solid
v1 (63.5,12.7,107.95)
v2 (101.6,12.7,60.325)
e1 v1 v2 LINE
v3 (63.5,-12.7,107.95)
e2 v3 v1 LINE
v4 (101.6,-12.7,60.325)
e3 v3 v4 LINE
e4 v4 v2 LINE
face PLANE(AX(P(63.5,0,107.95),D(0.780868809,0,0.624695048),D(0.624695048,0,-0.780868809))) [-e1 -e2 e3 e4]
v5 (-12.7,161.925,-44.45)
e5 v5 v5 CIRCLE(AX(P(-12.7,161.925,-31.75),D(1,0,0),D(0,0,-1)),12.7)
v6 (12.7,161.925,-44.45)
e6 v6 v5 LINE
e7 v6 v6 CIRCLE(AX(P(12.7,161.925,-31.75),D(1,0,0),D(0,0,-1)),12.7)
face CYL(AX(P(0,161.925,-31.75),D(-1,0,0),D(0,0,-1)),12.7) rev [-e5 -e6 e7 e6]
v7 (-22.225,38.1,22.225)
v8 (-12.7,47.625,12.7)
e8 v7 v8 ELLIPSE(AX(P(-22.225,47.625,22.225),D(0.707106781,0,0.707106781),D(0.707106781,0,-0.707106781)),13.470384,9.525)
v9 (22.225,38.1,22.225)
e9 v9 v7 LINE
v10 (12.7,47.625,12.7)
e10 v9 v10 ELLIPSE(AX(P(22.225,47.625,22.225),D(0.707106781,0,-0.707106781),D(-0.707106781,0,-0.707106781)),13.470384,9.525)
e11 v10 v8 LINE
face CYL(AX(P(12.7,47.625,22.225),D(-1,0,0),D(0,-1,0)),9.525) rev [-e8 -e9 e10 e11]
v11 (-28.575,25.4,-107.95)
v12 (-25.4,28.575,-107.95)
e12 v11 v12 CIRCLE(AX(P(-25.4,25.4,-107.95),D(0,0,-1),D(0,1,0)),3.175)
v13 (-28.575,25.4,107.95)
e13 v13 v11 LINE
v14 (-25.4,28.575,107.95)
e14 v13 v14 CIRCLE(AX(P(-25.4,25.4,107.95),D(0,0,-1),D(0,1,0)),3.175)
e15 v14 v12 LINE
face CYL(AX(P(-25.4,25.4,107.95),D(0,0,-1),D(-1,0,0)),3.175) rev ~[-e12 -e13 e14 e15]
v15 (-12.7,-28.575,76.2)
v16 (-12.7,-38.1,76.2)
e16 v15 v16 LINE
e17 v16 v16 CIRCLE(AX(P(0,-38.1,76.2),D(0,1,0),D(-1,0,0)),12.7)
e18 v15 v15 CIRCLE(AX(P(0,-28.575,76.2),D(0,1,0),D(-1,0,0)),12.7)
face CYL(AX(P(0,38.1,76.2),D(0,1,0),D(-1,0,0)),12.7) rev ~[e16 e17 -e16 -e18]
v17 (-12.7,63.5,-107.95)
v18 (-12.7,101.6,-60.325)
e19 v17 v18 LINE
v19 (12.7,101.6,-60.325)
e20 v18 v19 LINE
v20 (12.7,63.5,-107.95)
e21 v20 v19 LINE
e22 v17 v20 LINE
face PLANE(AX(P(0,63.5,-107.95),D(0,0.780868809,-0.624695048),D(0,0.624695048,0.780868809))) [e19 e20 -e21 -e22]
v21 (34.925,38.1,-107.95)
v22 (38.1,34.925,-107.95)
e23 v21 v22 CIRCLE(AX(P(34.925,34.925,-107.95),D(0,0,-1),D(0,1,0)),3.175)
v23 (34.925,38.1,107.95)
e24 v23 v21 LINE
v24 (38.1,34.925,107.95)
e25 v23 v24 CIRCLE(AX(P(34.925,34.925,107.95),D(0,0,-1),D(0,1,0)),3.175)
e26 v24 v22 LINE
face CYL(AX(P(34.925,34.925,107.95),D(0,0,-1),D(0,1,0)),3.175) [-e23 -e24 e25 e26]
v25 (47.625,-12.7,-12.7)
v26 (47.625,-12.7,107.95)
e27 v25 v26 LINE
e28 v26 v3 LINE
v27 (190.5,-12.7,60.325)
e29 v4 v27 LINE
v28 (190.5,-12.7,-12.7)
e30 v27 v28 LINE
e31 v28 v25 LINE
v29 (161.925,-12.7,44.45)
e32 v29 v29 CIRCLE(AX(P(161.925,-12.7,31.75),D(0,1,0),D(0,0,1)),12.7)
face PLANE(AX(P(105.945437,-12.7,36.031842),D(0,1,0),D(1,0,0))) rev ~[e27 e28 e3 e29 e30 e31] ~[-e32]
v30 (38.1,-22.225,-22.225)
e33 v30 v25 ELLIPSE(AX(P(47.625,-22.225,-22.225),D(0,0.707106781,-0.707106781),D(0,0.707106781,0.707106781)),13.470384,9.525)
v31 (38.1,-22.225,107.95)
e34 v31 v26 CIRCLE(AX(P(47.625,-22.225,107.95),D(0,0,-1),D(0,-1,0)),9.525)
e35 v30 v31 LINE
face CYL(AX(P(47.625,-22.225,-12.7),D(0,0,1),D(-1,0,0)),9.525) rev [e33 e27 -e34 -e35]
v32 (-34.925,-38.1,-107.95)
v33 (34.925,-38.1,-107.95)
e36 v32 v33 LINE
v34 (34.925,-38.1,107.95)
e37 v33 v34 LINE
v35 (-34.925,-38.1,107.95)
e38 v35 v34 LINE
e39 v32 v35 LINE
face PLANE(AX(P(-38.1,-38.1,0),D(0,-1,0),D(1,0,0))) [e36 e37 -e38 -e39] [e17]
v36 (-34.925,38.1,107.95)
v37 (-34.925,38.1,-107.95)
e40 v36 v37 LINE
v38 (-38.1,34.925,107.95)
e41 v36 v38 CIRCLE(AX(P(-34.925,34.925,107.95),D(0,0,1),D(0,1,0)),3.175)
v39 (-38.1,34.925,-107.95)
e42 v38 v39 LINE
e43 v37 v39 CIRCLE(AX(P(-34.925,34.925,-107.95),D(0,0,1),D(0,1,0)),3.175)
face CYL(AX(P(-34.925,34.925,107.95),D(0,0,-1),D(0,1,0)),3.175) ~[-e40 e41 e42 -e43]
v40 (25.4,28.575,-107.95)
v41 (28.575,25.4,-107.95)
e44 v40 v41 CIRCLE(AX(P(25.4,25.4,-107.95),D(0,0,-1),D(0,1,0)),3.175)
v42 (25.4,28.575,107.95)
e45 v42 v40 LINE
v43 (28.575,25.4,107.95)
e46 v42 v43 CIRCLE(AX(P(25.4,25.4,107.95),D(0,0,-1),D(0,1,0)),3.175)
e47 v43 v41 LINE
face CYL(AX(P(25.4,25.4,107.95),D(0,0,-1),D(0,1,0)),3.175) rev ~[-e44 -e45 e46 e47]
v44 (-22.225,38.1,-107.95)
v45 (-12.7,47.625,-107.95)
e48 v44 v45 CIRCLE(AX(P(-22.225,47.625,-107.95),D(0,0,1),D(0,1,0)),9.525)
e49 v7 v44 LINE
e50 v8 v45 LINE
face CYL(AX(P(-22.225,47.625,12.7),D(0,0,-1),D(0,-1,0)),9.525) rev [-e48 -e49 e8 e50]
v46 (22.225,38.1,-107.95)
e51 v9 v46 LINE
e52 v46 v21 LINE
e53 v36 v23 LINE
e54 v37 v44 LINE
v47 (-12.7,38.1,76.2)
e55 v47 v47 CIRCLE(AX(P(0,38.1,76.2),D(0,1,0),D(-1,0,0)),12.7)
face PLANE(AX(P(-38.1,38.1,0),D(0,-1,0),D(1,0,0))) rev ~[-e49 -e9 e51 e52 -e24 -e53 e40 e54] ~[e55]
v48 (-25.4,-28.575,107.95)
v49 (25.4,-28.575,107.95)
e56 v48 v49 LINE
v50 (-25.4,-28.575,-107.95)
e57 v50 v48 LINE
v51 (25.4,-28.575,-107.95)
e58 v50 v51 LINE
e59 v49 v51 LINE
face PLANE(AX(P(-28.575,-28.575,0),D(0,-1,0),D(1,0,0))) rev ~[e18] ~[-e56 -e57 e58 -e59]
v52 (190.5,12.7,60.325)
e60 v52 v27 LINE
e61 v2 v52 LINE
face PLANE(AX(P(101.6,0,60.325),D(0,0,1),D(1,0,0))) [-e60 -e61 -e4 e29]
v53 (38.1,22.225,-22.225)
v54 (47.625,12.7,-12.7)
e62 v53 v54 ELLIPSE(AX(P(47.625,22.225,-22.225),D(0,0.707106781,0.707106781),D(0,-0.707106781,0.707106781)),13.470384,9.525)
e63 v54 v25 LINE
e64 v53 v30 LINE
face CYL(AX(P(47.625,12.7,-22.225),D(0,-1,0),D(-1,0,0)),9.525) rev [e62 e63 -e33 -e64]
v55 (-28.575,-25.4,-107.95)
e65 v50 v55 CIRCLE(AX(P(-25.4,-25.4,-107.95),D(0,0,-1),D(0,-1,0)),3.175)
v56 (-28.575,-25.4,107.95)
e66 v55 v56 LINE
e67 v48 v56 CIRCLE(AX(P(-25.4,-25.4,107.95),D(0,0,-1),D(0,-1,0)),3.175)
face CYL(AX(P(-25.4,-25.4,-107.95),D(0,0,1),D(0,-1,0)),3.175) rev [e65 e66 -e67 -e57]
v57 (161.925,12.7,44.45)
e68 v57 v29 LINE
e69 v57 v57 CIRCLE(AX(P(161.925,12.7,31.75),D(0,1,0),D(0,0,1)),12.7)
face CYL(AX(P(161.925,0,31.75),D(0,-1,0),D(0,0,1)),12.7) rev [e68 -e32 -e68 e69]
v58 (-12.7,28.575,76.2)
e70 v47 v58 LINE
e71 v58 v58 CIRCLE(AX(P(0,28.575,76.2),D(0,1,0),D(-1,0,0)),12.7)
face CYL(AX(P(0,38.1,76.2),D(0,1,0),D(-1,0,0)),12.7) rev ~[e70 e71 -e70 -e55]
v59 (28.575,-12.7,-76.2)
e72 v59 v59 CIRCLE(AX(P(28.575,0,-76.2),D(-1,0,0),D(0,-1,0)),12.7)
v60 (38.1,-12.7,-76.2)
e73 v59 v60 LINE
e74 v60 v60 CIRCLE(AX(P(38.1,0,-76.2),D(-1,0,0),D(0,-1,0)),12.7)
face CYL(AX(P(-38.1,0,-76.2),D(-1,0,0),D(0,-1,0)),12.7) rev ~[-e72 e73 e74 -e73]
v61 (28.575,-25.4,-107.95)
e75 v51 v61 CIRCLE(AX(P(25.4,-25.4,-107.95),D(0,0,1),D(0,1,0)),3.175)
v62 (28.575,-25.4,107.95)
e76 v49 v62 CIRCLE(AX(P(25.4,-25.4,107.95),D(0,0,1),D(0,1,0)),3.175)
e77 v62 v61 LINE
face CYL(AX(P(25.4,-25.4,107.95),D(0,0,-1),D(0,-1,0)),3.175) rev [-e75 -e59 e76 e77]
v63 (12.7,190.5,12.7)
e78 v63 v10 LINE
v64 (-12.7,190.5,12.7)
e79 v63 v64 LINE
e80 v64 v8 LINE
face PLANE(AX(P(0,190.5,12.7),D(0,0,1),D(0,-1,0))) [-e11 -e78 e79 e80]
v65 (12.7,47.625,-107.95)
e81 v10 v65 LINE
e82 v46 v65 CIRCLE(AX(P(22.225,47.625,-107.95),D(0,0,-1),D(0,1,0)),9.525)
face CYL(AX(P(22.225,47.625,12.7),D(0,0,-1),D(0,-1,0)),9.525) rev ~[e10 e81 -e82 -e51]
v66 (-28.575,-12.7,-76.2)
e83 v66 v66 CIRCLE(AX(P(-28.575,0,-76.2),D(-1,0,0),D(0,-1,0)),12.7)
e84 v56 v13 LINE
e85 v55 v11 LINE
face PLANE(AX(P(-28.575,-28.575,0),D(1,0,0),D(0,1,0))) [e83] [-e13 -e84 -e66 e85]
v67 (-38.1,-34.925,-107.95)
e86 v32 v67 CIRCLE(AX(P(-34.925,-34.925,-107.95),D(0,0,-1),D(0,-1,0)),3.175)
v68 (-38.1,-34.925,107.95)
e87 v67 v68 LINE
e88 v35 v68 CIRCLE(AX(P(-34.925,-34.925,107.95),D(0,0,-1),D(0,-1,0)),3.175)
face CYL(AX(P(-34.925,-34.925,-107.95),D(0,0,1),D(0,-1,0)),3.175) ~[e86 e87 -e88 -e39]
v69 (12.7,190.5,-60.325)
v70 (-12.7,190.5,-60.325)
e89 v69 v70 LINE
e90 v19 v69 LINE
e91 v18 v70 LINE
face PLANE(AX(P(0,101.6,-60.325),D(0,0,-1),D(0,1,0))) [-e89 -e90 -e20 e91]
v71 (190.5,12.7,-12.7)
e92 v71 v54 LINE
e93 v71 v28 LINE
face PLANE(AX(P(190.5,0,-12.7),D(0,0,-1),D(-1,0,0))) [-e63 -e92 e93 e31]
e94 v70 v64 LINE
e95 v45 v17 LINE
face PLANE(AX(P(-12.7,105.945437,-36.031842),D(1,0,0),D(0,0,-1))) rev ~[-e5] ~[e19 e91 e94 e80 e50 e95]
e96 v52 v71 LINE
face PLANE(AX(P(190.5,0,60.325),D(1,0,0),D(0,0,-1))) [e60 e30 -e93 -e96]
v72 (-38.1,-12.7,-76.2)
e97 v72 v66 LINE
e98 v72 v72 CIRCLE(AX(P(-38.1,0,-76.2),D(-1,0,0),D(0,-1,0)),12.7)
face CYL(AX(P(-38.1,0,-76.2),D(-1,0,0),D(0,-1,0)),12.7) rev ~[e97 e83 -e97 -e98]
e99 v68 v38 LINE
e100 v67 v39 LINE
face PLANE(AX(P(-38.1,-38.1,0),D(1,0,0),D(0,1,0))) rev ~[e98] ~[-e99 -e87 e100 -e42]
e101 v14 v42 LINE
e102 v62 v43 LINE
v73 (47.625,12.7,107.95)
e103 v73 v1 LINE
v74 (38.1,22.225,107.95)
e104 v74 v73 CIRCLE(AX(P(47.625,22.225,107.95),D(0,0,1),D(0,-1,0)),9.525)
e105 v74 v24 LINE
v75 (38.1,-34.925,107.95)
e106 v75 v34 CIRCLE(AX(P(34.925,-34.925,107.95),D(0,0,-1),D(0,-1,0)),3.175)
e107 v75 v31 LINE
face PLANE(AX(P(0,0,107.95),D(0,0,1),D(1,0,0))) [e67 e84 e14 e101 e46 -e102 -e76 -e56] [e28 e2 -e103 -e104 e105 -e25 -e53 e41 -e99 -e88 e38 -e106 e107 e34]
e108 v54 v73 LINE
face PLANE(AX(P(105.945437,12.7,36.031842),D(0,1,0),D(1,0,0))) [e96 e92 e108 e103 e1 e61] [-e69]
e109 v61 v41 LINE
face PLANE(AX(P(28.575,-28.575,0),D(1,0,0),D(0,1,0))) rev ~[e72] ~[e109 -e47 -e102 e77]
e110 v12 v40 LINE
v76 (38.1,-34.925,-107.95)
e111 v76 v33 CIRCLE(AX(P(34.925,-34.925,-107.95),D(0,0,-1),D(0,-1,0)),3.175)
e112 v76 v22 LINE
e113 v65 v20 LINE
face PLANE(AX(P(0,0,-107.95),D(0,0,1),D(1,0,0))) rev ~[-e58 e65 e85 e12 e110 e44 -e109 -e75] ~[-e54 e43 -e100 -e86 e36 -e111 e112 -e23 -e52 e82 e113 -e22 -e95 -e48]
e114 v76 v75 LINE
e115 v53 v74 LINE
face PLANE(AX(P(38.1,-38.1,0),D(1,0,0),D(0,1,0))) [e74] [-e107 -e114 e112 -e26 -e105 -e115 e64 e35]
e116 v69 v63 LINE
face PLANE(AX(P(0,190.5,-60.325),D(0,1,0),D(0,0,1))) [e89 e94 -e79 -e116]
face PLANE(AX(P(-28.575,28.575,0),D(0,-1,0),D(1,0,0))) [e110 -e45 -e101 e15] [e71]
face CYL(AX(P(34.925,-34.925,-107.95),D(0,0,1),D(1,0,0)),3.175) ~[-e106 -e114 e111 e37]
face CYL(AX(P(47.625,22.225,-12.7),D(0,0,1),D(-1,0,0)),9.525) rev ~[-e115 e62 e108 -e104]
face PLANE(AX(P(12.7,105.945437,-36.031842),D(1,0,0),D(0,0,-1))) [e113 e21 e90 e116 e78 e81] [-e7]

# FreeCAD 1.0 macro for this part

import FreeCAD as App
import Part
import Sketcher
from FreeCAD import Vector
Q = App.Units.Quantity


def edges_at(feature, points):
    """Names of the edges that pass closest to the given points."""
    edges = feature.Shape.Edges
    near = lambda p: min(range(len(edges)), key=lambda i: edges[i].distToShape(Part.Vertex(*p))[0])
    return sorted({f"Edge{near(p) + 1}" for p in points})


def add_polygon(sketch, points):
    """Adds a closed chain of lines whose ends are joined by coincident constraints."""
    first, n = sketch.GeometryCount, len(points)
    for a, b in zip(points, points[1:] + points[:1]):
        sketch.addGeometry(Part.LineSegment(App.Vector(*a, 0), App.Vector(*b, 0)), False)
    for i in range(n):
        sketch.addConstraint(Sketcher.Constraint("Coincident", first + i, 2, first + (i + 1) % n, 1))

doc = App.newDocument("Part")
body = doc.addObject("PartDesign::Body", "Body")

# Sketch on XY plane
sketch1 = body.newObject("Sketcher::SketchObject", "Sketch")
sketch1.AttachmentSupport = (doc.getObject("XY_Plane"), [""])
sketch1.MapMode = "FlatFace"
add_polygon(sketch1, [(-38.1, 38.1), (-38.1, -38.1), (38.1, -38.1), (38.1, 38.1)])  # lines 0-3
add_polygon(sketch1, [(28.575, -28.575), (-28.575, -28.575), (-28.575, 28.575), (28.575, 28.575)])  # lines 4-7
sketch1.addConstraint([
    Sketcher.Constraint("Vertical", 0),
    Sketcher.Constraint("Horizontal", 1),
    Sketcher.Constraint("Vertical", 2),
    Sketcher.Constraint("Horizontal", 3),
    Sketcher.Constraint("Horizontal", 4),
    Sketcher.Constraint("Vertical", 5),
    Sketcher.Constraint("Horizontal", 6),
    Sketcher.Constraint("Vertical", 7),
    Sketcher.Constraint("Symmetric", 0, 2, 2, 2, -1, 1),
    Sketcher.Constraint("Symmetric", 4, 2, 6, 2, -1, 1),
    Sketcher.Constraint("Equal", 3, 0),
    Sketcher.Constraint("Equal", 6, 5),
    Sketcher.Constraint("DistanceX", 1, 1, 1, 2, Q("3 in")),
    Sketcher.Constraint("DistanceX", 4, 2, 4, 1, Q("2.25 in")),
])
pad1 = body.newObject("PartDesign::Pad", "Pad")
pad1.Profile = sketch1
pad1.Length = Q("8.5 in")
pad1.Midplane = True

# Sketch on XZ plane
sketch2 = body.newObject("Sketcher::SketchObject", "Sketch001")
sketch2.AttachmentSupport = (doc.getObject("XZ_Plane"), [""])
sketch2.MapMode = "FlatFace"
sketch2.AttachmentOffset = App.Placement(Vector(0, 0, -1.5 * 25.4), App.Rotation())
sketch2.addGeometry(Part.Circle(Vector(0, 76.2, 0), Vector(0, 0, 1), 12.7), False)
sketch2.addConstraint([
    Sketcher.Constraint("PointOnObject", 0, 3, -2),
    Sketcher.Constraint("Diameter", 0, Q("1 in")),
    Sketcher.Constraint("DistanceY", -1, 1, 0, 3, Q("3 in")),
])
pocket1 = body.newObject("PartDesign::Pocket", "Pocket")
pocket1.Profile = sketch2
pocket1.Type = "ThroughAll"
pocket1.Reversed = True

# Sketch on YZ plane
sketch3 = body.newObject("Sketcher::SketchObject", "Sketch002")
sketch3.AttachmentSupport = (doc.getObject("YZ_Plane"), [""])
sketch3.MapMode = "FlatFace"
sketch3.AttachmentOffset = App.Placement(Vector(0, 0, -1.5 * 25.4), App.Rotation())
sketch3.addGeometry(Part.Circle(Vector(0, -76.2, 0), Vector(0, 0, 1), 12.7), False)
sketch3.addConstraint([
    Sketcher.Constraint("PointOnObject", 0, 3, -2),
    Sketcher.Constraint("Diameter", 0, Q("1 in")),
    Sketcher.Constraint("DistanceY", 0, 3, -1, 1, Q("3 in")),
])
pocket2 = body.newObject("PartDesign::Pocket", "Pocket001")
pocket2.Profile = sketch3
pocket2.Type = "ThroughAll"
pocket2.Reversed = True

# Sketch on YZ plane
sketch4 = body.newObject("Sketcher::SketchObject", "Sketch003")
sketch4.AttachmentSupport = (doc.getObject("YZ_Plane"), [""])
sketch4.MapMode = "FlatFace"
add_polygon(sketch4, [(38.1, 12.7), (38.1, -107.95), (63.5, -107.95), (101.6, -60.325), (190.5, -60.325), (190.5, 12.7)])  # lines 0-5
sketch4.addGeometry(Part.Circle(Vector(161.925, -31.75, 0), Vector(0, 0, 1), 12.7), False)  # 6
sketch4.addConstraint([
    Sketcher.Constraint("Vertical", 0),
    Sketcher.Constraint("Horizontal", 1),
    Sketcher.Constraint("Horizontal", 3),
    Sketcher.Constraint("Vertical", 4),
    Sketcher.Constraint("Horizontal", 5),
    Sketcher.Constraint("Diameter", 6, Q("1 in")),
    Sketcher.Constraint("DistanceX", 1, 1, 1, 2, Q("1 in")),
    Sketcher.Constraint("DistanceX", 5, 2, 5, 1, Q("6 in")),
    Sketcher.Constraint("DistanceX", 3, 1, 3, 2, Q("3.5 in")),
    Sketcher.Constraint("DistanceX", -1, 1, 2, 2, Q("4 in")),
    Sketcher.Constraint("DistanceY", 0, 2, 6, 3, Q("3 in")),
    Sketcher.Constraint("DistanceY", 0, 2, 0, 1, Q("4.75 in")),
    Sketcher.Constraint("DistanceY", -1, 1, 4, 2, Q("0.5 in")),
    Sketcher.Constraint("DistanceY", 4, 1, 4, 2, Q("2.875 in")),
    Sketcher.Constraint("DistanceX", -1, 1, 6, 3, Q("6.375 in")),
])
pad2 = body.newObject("PartDesign::Pad", "Pad001")
pad2.Profile = sketch4
pad2.Length = Q("1 in")
pad2.Midplane = True

# Sketch on XZ plane
sketch5 = body.newObject("Sketcher::SketchObject", "Sketch004")
sketch5.AttachmentSupport = (doc.getObject("XZ_Plane"), [""])
sketch5.MapMode = "FlatFace"
add_polygon(sketch5, [(38.1, -12.7), (38.1, 107.95), (63.5, 107.95), (101.6, 60.325), (190.5, 60.325), (190.5, -12.7)])  # lines 0-5
sketch5.addGeometry(Part.Circle(Vector(161.925, 31.75, 0), Vector(0, 0, 1), 12.7), False)  # 6
sketch5.addConstraint([
    Sketcher.Constraint("Vertical", 0),
    Sketcher.Constraint("Horizontal", 1),
    Sketcher.Constraint("Horizontal", 3),
    Sketcher.Constraint("Vertical", 4),
    Sketcher.Constraint("Horizontal", 5),
    Sketcher.Constraint("Diameter", 6, Q("1 in")),
    Sketcher.Constraint("DistanceX", 1, 1, 1, 2, Q("1 in")),
    Sketcher.Constraint("DistanceX", 5, 2, 5, 1, Q("6 in")),
    Sketcher.Constraint("DistanceX", 3, 1, 3, 2, Q("3.5 in")),
    Sketcher.Constraint("DistanceX", -1, 1, 2, 2, Q("4 in")),
    Sketcher.Constraint("DistanceY", 6, 3, 0, 2, Q("3 in")),
    Sketcher.Constraint("DistanceY", 0, 1, 0, 2, Q("4.75 in")),
    Sketcher.Constraint("DistanceY", 4, 2, -1, 1, Q("0.5 in")),
    Sketcher.Constraint("DistanceY", 4, 2, 4, 1, Q("2.875 in")),
    Sketcher.Constraint("DistanceX", -1, 1, 6, 3, Q("6.375 in")),
])
pad3 = body.newObject("PartDesign::Pad", "Pad002")
pad3.Profile = sketch5
pad3.Length = Q("1 in")
pad3.Midplane = True
doc.recompute()

fillet = body.newObject("PartDesign::Fillet", "Fillet")
fillet.Base = (pad3, edges_at(pad3, [
    (12.7, 38.1, -47.625),
    (-12.7, 38.1, -47.625),
    (0, 38.1, 12.7),
    (38.1, 12.7, 47.625),
    (38.1, -12.7, 47.625),
    (38.1, 0, -12.7),
]))
fillet.Radius = Q("0.375 in")
doc.recompute()

fillet2 = body.newObject("PartDesign::Fillet", "Fillet001")
fillet2.Base = (fillet, edges_at(fillet, [
    (-28.575, 28.575, 0),
    (-28.575, -28.575, 0),
    (28.575, -28.575, 0),
    (28.575, 28.575, 0),
    (-38.1, 38.1, 0),
    (38.1, 38.1, 0),
    (38.1, -38.1, 0),
    (-38.1, -38.1, 0),
]))
fillet2.Radius = Q("0.125 in")

doc.recompute()
